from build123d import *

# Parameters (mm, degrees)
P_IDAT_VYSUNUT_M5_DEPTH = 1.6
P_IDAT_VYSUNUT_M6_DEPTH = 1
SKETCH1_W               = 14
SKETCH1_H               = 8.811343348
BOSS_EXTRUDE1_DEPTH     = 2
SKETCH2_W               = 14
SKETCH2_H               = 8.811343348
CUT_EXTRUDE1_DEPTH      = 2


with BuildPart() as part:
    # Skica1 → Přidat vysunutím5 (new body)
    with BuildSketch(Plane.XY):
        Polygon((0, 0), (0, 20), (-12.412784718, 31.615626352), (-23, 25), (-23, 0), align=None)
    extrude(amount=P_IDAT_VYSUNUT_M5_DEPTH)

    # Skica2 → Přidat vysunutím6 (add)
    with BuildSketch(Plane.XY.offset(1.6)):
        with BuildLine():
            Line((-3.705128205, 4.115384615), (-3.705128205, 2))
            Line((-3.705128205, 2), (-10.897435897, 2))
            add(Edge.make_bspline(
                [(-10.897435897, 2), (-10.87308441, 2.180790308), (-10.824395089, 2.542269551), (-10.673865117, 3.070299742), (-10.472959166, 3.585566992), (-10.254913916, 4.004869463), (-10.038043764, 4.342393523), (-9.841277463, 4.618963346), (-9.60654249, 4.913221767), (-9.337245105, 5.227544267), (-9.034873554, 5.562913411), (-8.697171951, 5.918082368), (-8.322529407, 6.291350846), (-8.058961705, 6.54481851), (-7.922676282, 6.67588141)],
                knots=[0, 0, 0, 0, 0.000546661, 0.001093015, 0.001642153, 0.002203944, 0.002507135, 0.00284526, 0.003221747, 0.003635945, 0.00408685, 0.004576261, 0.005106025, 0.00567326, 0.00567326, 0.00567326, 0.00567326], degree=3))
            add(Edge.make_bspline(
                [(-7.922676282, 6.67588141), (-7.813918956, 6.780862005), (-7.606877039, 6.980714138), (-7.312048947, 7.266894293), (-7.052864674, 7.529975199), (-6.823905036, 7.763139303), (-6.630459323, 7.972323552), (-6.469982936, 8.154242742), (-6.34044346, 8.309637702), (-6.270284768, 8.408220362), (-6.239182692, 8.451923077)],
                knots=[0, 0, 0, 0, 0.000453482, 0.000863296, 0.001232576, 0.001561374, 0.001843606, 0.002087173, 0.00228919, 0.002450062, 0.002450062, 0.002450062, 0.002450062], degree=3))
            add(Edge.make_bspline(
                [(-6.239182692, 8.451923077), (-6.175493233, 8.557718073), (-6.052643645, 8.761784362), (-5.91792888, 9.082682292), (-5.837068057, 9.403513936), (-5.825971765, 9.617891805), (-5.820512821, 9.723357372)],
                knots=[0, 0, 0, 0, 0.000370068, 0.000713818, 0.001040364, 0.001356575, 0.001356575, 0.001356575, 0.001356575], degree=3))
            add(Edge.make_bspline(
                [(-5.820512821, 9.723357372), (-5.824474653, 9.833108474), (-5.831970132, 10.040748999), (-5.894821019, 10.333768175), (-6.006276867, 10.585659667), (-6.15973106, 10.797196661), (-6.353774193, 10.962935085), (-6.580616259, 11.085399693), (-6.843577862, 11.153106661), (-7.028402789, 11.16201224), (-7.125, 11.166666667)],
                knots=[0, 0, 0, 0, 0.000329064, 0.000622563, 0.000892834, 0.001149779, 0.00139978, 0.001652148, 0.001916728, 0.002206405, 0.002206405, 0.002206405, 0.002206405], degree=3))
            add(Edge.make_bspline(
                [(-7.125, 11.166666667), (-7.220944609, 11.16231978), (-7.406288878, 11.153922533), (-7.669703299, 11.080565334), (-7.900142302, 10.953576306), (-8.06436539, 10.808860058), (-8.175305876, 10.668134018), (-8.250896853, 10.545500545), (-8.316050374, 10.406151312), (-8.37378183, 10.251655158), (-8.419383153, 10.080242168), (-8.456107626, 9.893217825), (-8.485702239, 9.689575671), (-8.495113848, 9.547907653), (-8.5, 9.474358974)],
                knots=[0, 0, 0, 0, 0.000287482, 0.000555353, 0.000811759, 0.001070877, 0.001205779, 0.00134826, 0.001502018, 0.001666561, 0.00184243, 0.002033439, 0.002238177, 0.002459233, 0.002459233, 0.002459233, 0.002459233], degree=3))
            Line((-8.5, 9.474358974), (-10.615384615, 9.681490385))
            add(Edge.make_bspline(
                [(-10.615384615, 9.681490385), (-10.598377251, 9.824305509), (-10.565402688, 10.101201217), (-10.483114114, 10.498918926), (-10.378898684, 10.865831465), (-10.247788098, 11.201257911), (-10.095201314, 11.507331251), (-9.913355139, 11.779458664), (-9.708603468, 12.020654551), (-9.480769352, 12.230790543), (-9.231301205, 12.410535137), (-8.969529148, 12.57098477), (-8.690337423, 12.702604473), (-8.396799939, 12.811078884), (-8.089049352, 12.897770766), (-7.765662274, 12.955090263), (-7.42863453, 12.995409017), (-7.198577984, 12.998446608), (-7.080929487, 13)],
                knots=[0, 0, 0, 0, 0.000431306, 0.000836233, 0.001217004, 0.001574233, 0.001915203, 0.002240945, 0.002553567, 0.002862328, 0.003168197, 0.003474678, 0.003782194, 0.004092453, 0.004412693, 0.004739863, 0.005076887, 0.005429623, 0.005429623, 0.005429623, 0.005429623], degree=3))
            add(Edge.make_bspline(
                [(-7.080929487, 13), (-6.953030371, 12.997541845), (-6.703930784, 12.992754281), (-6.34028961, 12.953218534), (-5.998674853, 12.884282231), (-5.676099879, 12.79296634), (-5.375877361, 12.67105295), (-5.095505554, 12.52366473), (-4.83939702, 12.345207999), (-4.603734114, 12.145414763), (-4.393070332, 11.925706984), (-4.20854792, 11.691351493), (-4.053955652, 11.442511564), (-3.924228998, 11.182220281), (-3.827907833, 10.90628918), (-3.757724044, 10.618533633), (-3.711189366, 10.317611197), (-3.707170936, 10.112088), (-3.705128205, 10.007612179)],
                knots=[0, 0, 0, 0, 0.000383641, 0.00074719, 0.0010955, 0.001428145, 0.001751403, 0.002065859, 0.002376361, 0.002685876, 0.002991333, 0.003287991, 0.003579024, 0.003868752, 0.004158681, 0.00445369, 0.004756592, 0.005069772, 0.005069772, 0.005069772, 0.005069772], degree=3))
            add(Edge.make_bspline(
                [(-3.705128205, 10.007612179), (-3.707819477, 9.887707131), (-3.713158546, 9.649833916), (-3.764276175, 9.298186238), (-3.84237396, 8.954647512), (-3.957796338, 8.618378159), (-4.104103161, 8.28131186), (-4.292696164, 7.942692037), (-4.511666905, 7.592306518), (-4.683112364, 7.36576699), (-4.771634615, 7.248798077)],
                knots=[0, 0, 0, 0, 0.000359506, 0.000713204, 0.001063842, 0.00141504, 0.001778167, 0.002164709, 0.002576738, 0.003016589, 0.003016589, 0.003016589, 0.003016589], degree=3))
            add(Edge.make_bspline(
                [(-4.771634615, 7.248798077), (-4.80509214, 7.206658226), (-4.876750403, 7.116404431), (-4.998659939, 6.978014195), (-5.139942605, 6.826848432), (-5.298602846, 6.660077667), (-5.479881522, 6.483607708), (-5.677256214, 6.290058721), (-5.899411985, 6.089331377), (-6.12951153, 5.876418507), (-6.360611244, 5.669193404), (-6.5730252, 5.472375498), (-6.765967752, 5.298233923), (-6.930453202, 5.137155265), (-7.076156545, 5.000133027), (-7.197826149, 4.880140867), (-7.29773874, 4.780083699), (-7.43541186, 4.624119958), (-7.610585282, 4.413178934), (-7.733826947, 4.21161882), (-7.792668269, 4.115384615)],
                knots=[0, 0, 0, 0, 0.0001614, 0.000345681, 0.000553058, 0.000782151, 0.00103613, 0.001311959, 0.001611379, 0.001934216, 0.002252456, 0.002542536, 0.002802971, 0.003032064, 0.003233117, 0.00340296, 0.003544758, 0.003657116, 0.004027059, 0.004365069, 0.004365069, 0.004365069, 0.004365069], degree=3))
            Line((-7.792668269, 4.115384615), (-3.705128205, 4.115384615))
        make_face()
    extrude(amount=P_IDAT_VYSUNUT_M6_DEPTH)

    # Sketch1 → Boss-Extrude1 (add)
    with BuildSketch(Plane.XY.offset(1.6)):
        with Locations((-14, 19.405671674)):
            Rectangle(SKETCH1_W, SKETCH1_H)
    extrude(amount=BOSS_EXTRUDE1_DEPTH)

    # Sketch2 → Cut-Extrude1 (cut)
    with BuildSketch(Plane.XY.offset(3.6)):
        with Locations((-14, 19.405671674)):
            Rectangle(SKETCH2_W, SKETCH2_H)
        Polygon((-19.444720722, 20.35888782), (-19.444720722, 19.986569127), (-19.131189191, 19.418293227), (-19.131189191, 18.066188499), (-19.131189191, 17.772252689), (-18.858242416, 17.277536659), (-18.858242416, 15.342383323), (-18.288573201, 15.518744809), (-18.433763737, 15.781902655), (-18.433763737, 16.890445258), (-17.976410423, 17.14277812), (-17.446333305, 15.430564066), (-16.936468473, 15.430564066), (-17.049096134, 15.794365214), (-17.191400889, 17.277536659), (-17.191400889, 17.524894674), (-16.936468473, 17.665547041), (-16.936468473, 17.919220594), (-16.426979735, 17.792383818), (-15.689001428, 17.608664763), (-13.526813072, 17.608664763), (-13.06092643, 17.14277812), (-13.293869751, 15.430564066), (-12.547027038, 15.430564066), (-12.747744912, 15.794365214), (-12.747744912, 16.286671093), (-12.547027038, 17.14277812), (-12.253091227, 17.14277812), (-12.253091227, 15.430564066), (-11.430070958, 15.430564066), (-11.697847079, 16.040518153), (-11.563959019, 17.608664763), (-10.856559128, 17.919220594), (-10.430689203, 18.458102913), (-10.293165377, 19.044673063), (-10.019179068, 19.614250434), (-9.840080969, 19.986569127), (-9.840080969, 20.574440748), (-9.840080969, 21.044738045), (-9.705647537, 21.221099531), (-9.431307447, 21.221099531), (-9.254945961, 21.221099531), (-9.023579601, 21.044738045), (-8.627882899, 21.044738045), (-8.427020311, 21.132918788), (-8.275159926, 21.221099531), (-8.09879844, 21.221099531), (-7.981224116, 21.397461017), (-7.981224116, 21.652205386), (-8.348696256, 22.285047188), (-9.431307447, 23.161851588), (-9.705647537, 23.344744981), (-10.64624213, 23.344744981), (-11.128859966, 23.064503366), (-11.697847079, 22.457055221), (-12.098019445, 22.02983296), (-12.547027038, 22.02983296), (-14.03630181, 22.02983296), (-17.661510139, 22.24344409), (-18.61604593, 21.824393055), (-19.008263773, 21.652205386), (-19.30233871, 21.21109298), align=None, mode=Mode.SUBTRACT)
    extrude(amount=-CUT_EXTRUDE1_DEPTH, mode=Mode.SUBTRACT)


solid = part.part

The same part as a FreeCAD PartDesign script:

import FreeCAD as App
import Part
import Sketcher
from FreeCAD import Vector
Q = App.Units.Quantity


def add_polygon(sketch, points):
    """Adds a closed chain of lines whose ends are joined by coincident constraints."""
    first, n = sketch.GeometryCount, len(points)
    for a, b in zip(points, points[1:] + points[:1]):
        sketch.addGeometry(Part.LineSegment(App.Vector(*a, 0), App.Vector(*b, 0)), False)
    for i in range(n):
        sketch.addConstraint(Sketcher.Constraint("Coincident", first + i, 2, first + (i + 1) % n, 1))

doc = App.newDocument("Part")
body = doc.addObject("PartDesign::Body", "Body")

sketch1 = doc.addObject("Sketcher::SketchObject", "Sketch")
body.addObject(sketch1)
sketch1.AttachmentSupport = (doc.XY_Plane, [""])
sketch1.MapMode = "FlatFace"
add_polygon(sketch1, [(0, 0), (0, 20), (-12, 32), (-23, 25), (-23, 0)])
sketch1.addConstraint([
    Sketcher.Constraint("Vertical", 0),
    Sketcher.Constraint("Vertical", 3),
    Sketcher.Constraint("Horizontal", 4),
    Sketcher.Constraint("Coincident", 4, 2, -1, 1),
    Sketcher.Constraint("DistanceX", 4, 1, 4, 2, Q("23 mm")),
    Sketcher.Constraint("DistanceY", 0, 1, 0, 2, Q("20 mm")),
    Sketcher.Constraint("DistanceY", 3, 2, 3, 1, Q("25 mm")),
    Sketcher.Constraint("Angle", 2, Q("-148 deg")),
    Sketcher.Constraint("Distance", 1, Q("17 mm")),
])
pad1 = doc.addObject("PartDesign::Pad", "Pad")
body.addObject(pad1)
pad1.Profile = sketch1
pad1.Length = 1.6

sketch2 = doc.addObject("Sketcher::SketchObject", "Sketch001")
body.addObject(sketch2)
sketch2.AttachmentSupport = (doc.XY_Plane, [""])
sketch2.MapMode = "FlatFace"
sketch2.AttachmentOffset = App.Placement(Vector(0, 0, 1.6), App.Rotation())
sketch2.addGeometry([
    Part.LineSegment(Vector(-3.705128, 2, 0), Vector(-3.705128, 4.115385, 0)),
    Part.LineSegment(Vector(-3.705128, 4.115385, 0), Vector(-7.792668, 4.115385, 0)),
    Part.BSplineCurve([Vector(-4.771635, 7.248798, 0), Vector(-4.805092, 7.206658, 0), Vector(-4.87675, 7.116404, 0), Vector(-4.99866, 6.978014, 0), Vector(-5.139943, 6.826848, 0), Vector(-5.298603, 6.660078, 0), Vector(-5.479882, 6.483608, 0), Vector(-5.677256, 6.290059, 0), Vector(-5.899412, 6.089331, 0), Vector(-6.129512, 5.876419, 0), Vector(-6.360611, 5.669193, 0), Vector(-6.573025, 5.472375, 0), Vector(-6.765968, 5.298234, 0), Vector(-6.930453, 5.137155, 0), Vector(-7.076157, 5.000133, 0), Vector(-7.197826, 4.880141, 0), Vector(-7.297739, 4.780084, 0), Vector(-7.435412, 4.62412, 0), Vector(-7.610585, 4.413179, 0), Vector(-7.733827, 4.211619, 0), Vector(-7.792668, 4.115385, 0)], [4, 1, 1, 1, 1, 1, 1, 1, 1, 1, 1, 1, 1, 1, 1, 1, 1, 1, 4], [0, 0.0001614, 0.000345681, 0.000553058, 0.000782151, 0.00103613, 0.001311959, 0.001611379, 0.001934216, 0.002252456, 0.002542536, 0.002802971, 0.003032064, 0.003233117, 0.00340296, 0.003544758, 0.003657116, 0.004027059, 0.004365069], False, 3, [1, 1, 1, 1, 1, 1, 1, 1, 1, 1, 1, 1, 1, 1, 1, 1, 1, 1, 1, 1, 1], False),
    Part.BSplineCurve([Vector(-3.705128, 10.007612, 0), Vector(-3.707819, 9.887707, 0), Vector(-3.713159, 9.649834, 0), Vector(-3.764276, 9.298186, 0), Vector(-3.842374, 8.954648, 0), Vector(-3.957796, 8.618378, 0), Vector(-4.104103, 8.281312, 0), Vector(-4.292696, 7.942692, 0), Vector(-4.511667, 7.592307, 0), Vector(-4.683112, 7.365767, 0), Vector(-4.771635, 7.248798, 0)], [4, 1, 1, 1, 1, 1, 1, 1, 4], [0, 0.000359506, 0.000713204, 0.001063842, 0.00141504, 0.001778167, 0.002164709, 0.002576738, 0.003016589], False, 3, [1, 1, 1, 1, 1, 1, 1, 1, 1, 1, 1], False),
    Part.BSplineCurve([Vector(-7.080929, 13, 0), Vector(-6.95303, 12.997542, 0), Vector(-6.703931, 12.992754, 0), Vector(-6.34029, 12.953219, 0), Vector(-5.998675, 12.884282, 0), Vector(-5.6761, 12.792966, 0), Vector(-5.375877, 12.671053, 0), Vector(-5.095506, 12.523665, 0), Vector(-4.839397, 12.345208, 0), Vector(-4.603734, 12.145415, 0), Vector(-4.39307, 11.925707, 0), Vector(-4.208548, 11.691351, 0), Vector(-4.053956, 11.442512, 0), Vector(-3.924229, 11.18222, 0), Vector(-3.827908, 10.906289, 0), Vector(-3.757724, 10.618534, 0), Vector(-3.711189, 10.317611, 0), Vector(-3.707171, 10.112088, 0), Vector(-3.705128, 10.007612, 0)], [4, 1, 1, 1, 1, 1, 1, 1, 1, 1, 1, 1, 1, 1, 1, 1, 4], [0, 0.000383641, 0.00074719, 0.0010955, 0.001428145, 0.001751403, 0.002065859, 0.002376361, 0.002685876, 0.002991333, 0.003287991, 0.003579024, 0.003868752, 0.004158681, 0.00445369, 0.004756592, 0.005069772], False, 3, [1, 1, 1, 1, 1, 1, 1, 1, 1, 1, 1, 1, 1, 1, 1, 1, 1, 1, 1], False),
    Part.BSplineCurve([Vector(-10.615385, 9.68149, 0), Vector(-10.598377, 9.824306, 0), Vector(-10.565403, 10.101201, 0), Vector(-10.483114, 10.498919, 0), Vector(-10.378899, 10.865831, 0), Vector(-10.247788, 11.201258, 0), Vector(-10.095201, 11.507331, 0), Vector(-9.913355, 11.779459, 0), Vector(-9.708603, 12.020655, 0), Vector(-9.480769, 12.230791, 0), Vector(-9.231301, 12.410535, 0), Vector(-8.969529, 12.570985, 0), Vector(-8.690337, 12.702604, 0), Vector(-8.3968, 12.811079, 0), Vector(-8.089049, 12.897771, 0), Vector(-7.765662, 12.95509, 0), Vector(-7.428635, 12.995409, 0), Vector(-7.198578, 12.998447, 0), Vector(-7.080929, 13, 0)], [4, 1, 1, 1, 1, 1, 1, 1, 1, 1, 1, 1, 1, 1, 1, 1, 4], [0, 0.000431306, 0.000836233, 0.001217004, 0.001574233, 0.001915203, 0.002240945, 0.002553567, 0.002862328, 0.003168197, 0.003474678, 0.003782194, 0.004092453, 0.004412693, 0.004739863, 0.005076887, 0.005429623], False, 3, [1, 1, 1, 1, 1, 1, 1, 1, 1, 1, 1, 1, 1, 1, 1, 1, 1, 1, 1], False),
    Part.LineSegment(Vector(-10.615385, 9.68149, 0), Vector(-8.5, 9.474359, 0)),
    Part.BSplineCurve([Vector(-7.125, 11.166667, 0), Vector(-7.220945, 11.16232, 0), Vector(-7.406289, 11.153923, 0), Vector(-7.669703, 11.080565, 0), Vector(-7.900142, 10.953576, 0), Vector(-8.064365, 10.80886, 0), Vector(-8.175306, 10.668134, 0), Vector(-8.250897, 10.545501, 0), Vector(-8.31605, 10.406151, 0), Vector(-8.373782, 10.251655, 0), Vector(-8.419383, 10.080242, 0), Vector(-8.456108, 9.893218, 0), Vector(-8.485702, 9.689576, 0), Vector(-8.495114, 9.547908, 0), Vector(-8.5, 9.474359, 0)], [4, 1, 1, 1, 1, 1, 1, 1, 1, 1, 1, 1, 4], [0, 0.000287482, 0.000555353, 0.000811759, 0.001070877, 0.001205779, 0.00134826, 0.001502018, 0.001666561, 0.00184243, 0.002033439, 0.002238177, 0.002459233], False, 3, [1, 1, 1, 1, 1, 1, 1, 1, 1, 1, 1, 1, 1, 1, 1], False),
    Part.BSplineCurve([Vector(-5.820513, 9.723357, 0), Vector(-5.824475, 9.833108, 0), Vector(-5.83197, 10.040749, 0), Vector(-5.894821, 10.333768, 0), Vector(-6.006277, 10.58566, 0), Vector(-6.159731, 10.797197, 0), Vector(-6.353774, 10.962935, 0), Vector(-6.580616, 11.0854, 0), Vector(-6.843578, 11.153107, 0), Vector(-7.028403, 11.162012, 0), Vector(-7.125, 11.166667, 0)], [4, 1, 1, 1, 1, 1, 1, 1, 4], [0, 0.000329064, 0.000622563, 0.000892834, 0.001149779, 0.00139978, 0.001652148, 0.001916728, 0.002206405], False, 3, [1, 1, 1, 1, 1, 1, 1, 1, 1, 1, 1], False),
    Part.BSplineCurve([Vector(-6.239183, 8.451923, 0), Vector(-6.175493, 8.557718, 0), Vector(-6.052644, 8.761784, 0), Vector(-5.917929, 9.082682, 0), Vector(-5.837068, 9.403514, 0), Vector(-5.825972, 9.617892, 0), Vector(-5.820513, 9.723357, 0)], [4, 1, 1, 1, 4], [0, 0.000370068, 0.000713818, 0.001040364, 0.001356575], False, 3, [1, 1, 1, 1, 1, 1, 1], False),
    Part.BSplineCurve([Vector(-7.922676, 6.675881, 0), Vector(-7.813919, 6.780862, 0), Vector(-7.606877, 6.980714, 0), Vector(-7.312049, 7.266894, 0), Vector(-7.052865, 7.529975, 0), Vector(-6.823905, 7.763139, 0), Vector(-6.630459, 7.972324, 0), Vector(-6.469983, 8.154243, 0), Vector(-6.340443, 8.309638, 0), Vector(-6.270285, 8.40822, 0), Vector(-6.239183, 8.451923, 0)], [4, 1, 1, 1, 1, 1, 1, 1, 4], [0, 0.000453482, 0.000863296, 0.001232576, 0.001561374, 0.001843606, 0.002087173, 0.00228919, 0.002450062], False, 3, [1, 1, 1, 1, 1, 1, 1, 1, 1, 1, 1], False),
    Part.BSplineCurve([Vector(-10.897436, 2, 0), Vector(-10.873084, 2.18079, 0), Vector(-10.824395, 2.54227, 0), Vector(-10.673865, 3.0703, 0), Vector(-10.472959, 3.585567, 0), Vector(-10.254914, 4.004869, 0), Vector(-10.038044, 4.342394, 0), Vector(-9.841277, 4.618963, 0), Vector(-9.606542, 4.913222, 0), Vector(-9.337245, 5.227544, 0), Vector(-9.034874, 5.562913, 0), Vector(-8.697172, 5.918082, 0), Vector(-8.322529, 6.291351, 0), Vector(-8.058962, 6.544819, 0), Vector(-7.922676, 6.675881, 0)], [4, 1, 1, 1, 1, 1, 1, 1, 1, 1, 1, 1, 4], [0, 0.000546661, 0.001093015, 0.001642153, 0.002203944, 0.002507135, 0.00284526, 0.003221747, 0.003635945, 0.00408685, 0.004576261, 0.005106025, 0.00567326], False, 3, [1, 1, 1, 1, 1, 1, 1, 1, 1, 1, 1, 1, 1, 1, 1], False),
    Part.LineSegment(Vector(-10.897436, 2, 0), Vector(-3.705128, 2, 0)),
], False)
sketch2.addConstraint([
    Sketcher.Constraint("Block", 2),
    Sketcher.Constraint("Block", 3),
    Sketcher.Constraint("Block", 4),
    Sketcher.Constraint("Block", 5),
    Sketcher.Constraint("Block", 7),
    Sketcher.Constraint("Block", 8),
    Sketcher.Constraint("Block", 9),
    Sketcher.Constraint("Block", 10),
    Sketcher.Constraint("Block", 11),
    Sketcher.Constraint("Coincident", 0, 2, 1, 1),
    Sketcher.Constraint("Coincident", 1, 2, 2, 2),
    Sketcher.Constraint("Coincident", 5, 1, 6, 1),
    Sketcher.Constraint("Coincident", 6, 2, 7, 2),
    Sketcher.Constraint("Coincident", 11, 1, 12, 1),
    Sketcher.Constraint("Coincident", 12, 2, 0, 1),
    Sketcher.Constraint("Vertical", 0),
    Sketcher.Constraint("Horizontal", 1),
    Sketcher.Constraint("Horizontal", 12),
    Sketcher.Constraint("DistanceX", 1, 2, 1, 1, Q("4.08754 mm")),
])
pad2 = doc.addObject("PartDesign::Pad", "Pad001")
body.addObject(pad2)
pad2.Profile = sketch2
pad2.Length = 1

sketch3 = doc.addObject("Sketcher::SketchObject", "Sketch002")
body.addObject(sketch3)
sketch3.AttachmentSupport = (doc.XY_Plane, [""])
sketch3.MapMode = "FlatFace"
sketch3.AttachmentOffset = App.Placement(Vector(0, 0, 1.6), App.Rotation())
add_polygon(sketch3, [(-21, 24), (-21, 15), (-7, 15), (-7, 24)])
sketch3.addConstraint([
    Sketcher.Constraint("Vertical", 0),
    Sketcher.Constraint("Horizontal", 1),
    Sketcher.Constraint("Vertical", 2),
    Sketcher.Constraint("Horizontal", 3),
    Sketcher.Constraint("DistanceX", 1, 1, 1, 2, Q("14 mm")),
    Sketcher.Constraint("DistanceX", 0, 2, -1, 1, Q("21 mm")),
    Sketcher.Constraint("DistanceY", -1, 1, 0, 2, Q("15 mm")),
    Sketcher.Constraint("DistanceY", 0, 2, 0, 1, Q("8.811343 mm")),
])
pad3 = doc.addObject("PartDesign::Pad", "Pad002")
body.addObject(pad3)
pad3.Profile = sketch3
pad3.Length = 2

sketch4 = doc.addObject("Sketcher::SketchObject", "Sketch003")
body.addObject(sketch4)
sketch4.AttachmentSupport = (doc.XY_Plane, [""])
sketch4.MapMode = "FlatFace"
sketch4.AttachmentOffset = App.Placement(Vector(0, 0, 3.6), App.Rotation())
add_polygon(sketch4, [(-21, 23.81), (-21, 15), (-7, 15), (-7, 23.81)])
add_polygon(sketch4, [(-19.44, 19.99), (-19.44, 20.36), (-19.3, 21.21), (-19.01, 21.65), (-18.62, 21.82), (-17.66, 22.24), (-14.04, 22.03), (-12.1, 22.03), (-11.7, 22.46), (-11.13, 23.06), (-10.65, 23.34), (-9.71, 23.34), (-9.43, 23.16), (-8.35, 22.29), (-7.98, 21.65), (-7.98, 21.4), (-8.1, 21.22), (-8.28, 21.22), (-8.43, 21.13), (-8.63, 21.04), (-9.02, 21.04), (-9.25, 21.22), (-9.71, 21.22), (-9.84, 21.04), (-9.84, 19.99), (-10.02, 19.61), (-10.29, 19.04), (-10.43, 18.46), (-10.86, 17.92), (-11.56, 17.61), (-11.7, 16.04), (-11.43, 15.43), (-12.25, 15.43), (-12.25, 17.14), (-12.55, 17.14), (-12.75, 16.29), (-12.75, 15.79), (-12.55, 15.43), (-13.29, 15.43), (-13.06, 17.14), (-13.53, 17.61), (-15.69, 17.61), (-16.43, 17.79), (-16.94, 17.92), (-16.94, 17.67), (-17.19, 17.52), (-17.19, 17.28), (-17.05, 15.79), (-16.94, 15.43), (-17.45, 15.43), (-17.98, 17.14), (-18.43, 16.89), (-18.43, 15.78), (-18.29, 15.52), (-18.86, 15.34), (-18.86, 17.28), (-19.13, 17.77), (-19.13, 19.42)])
sketch4.addConstraint([
    Sketcher.Constraint("Vertical", 0),
    Sketcher.Constraint("Horizontal", 1),
    Sketcher.Constraint("Vertical", 2),
    Sketcher.Constraint("Horizontal", 3),
    Sketcher.Constraint("Vertical", 4),
    Sketcher.Constraint("Horizontal", 10),
    Sketcher.Constraint("Horizontal", 14),
    Sketcher.Constraint("Vertical", 18),
    Sketcher.Constraint("Horizontal", 20),
    Sketcher.Constraint("Horizontal", 23),
    Sketcher.Constraint("Horizontal", 25),
    Sketcher.Constraint("Vertical", 27),
    Sketcher.Constraint("Horizontal", 35),
    Sketcher.Constraint("Vertical", 36),
    Sketcher.Constraint("Horizontal", 37),
    Sketcher.Constraint("Vertical", 39),
    Sketcher.Constraint("Horizontal", 41),
    Sketcher.Constraint("Horizontal", 44),
    Sketcher.Constraint("Vertical", 47),
    Sketcher.Constraint("Vertical", 49),
    Sketcher.Constraint("Horizontal", 52),
    Sketcher.Constraint("Vertical", 55),
    Sketcher.Constraint("Vertical", 58),
    Sketcher.Constraint("Vertical", 60),
    Sketcher.Constraint("Parallel", 7, 8),
    Sketcher.Constraint("Parallel", 11, 12),
    Sketcher.Constraint("Perpendicular", 6, 15),
    Sketcher.Constraint("Perpendicular", 13, 17),
    Sketcher.Constraint("Perpendicular", 15, 19),
    Sketcher.Constraint("Perpendicular", 17, 21),
    Sketcher.Constraint("Parallel", 8, 22),
    Sketcher.Constraint("Perpendicular", 24, 26),
    Sketcher.Constraint("Parallel", 28, 29),
    Sketcher.Constraint("Parallel", 22, 32),
    Sketcher.Constraint("Perpendicular", 32, 34),
    Sketcher.Constraint("Parallel", 30, 38),
    Sketcher.Constraint("Parallel", 45, 46),
    Sketcher.Constraint("Perpendicular", 40, 48),
    Sketcher.Constraint("Parallel", 51, 53),
    Sketcher.Constraint("Parallel", 48, 54),
    Sketcher.Constraint("Perpendicular", 54, 56),
    Sketcher.Constraint("Perpendicular", 53, 57),
    Sketcher.Constraint("Parallel", 56, 59),
    Sketcher.Constraint("Parallel", 59, 61),
    Sketcher.Constraint("Horizontal", 6, 2, 17, 2),
    Sketcher.Constraint("Horizontal", 20, 2, 24, 2),
    Sketcher.Constraint("Horizontal", 23, 2, 26, 2),
    Sketcher.Constraint("Horizontal", 35, 2, 40, 2),
    Sketcher.Constraint("Horizontal", 37, 2, 42, 2),
    Sketcher.Constraint("Horizontal", 32, 2, 43, 2),
    Sketcher.Constraint("Horizontal", 31, 2, 46, 2),
    Sketcher.Constraint("Horizontal", 39, 2, 50, 2),
    Sketcher.Constraint("Horizontal", 41, 2, 51, 2),
    Sketcher.Constraint("Horizontal", 42, 2, 53, 2),
    Sketcher.Constraint("Horizontal", 49, 2, 58, 2),
    Sketcher.Constraint("Horizontal", 27, 2, 61, 2),
    Sketcher.Constraint("Vertical", 14, 2, 25, 2),
    Sketcher.Constraint("Vertical", 11, 2, 33, 2),
    Sketcher.Constraint("Vertical", 37, 2, 40, 2),
    Sketcher.Constraint("Vertical", 47, 2, 51, 2),
    Sketcher.Constraint("DistanceX", 1, 1, 1, 2, Q("14 mm")),
    Sketcher.Constraint("Angle", 43, Q("135 deg")),
    Sketcher.Constraint("DistanceX", 0, 2, -1, 1, Q("21 mm")),
    Sketcher.Constraint("DistanceY", -1, 1, 0, 2, Q("15 mm")),
    Sketcher.Constraint("DistanceX", 25, 2, 25, 1, Q("0.450702 mm")),
    Sketcher.Constraint("DistanceX", 44, 2, -1, 1, Q("15.689001 mm")),
    Sketcher.Constraint("Distance", 40, Q("0.415498 mm")),
    Sketcher.Constraint("DistanceX", 20, 2, 20, 1, Q("0.176361 mm")),
    Sketcher.Constraint("DistanceX", 35, 2, 35, 1, Q("0.82302 mm")),
    Sketcher.Constraint("DistanceX", 44, 2, 44, 1, Q("2.162188 mm")),
    Sketcher.Constraint("DistanceY", 4, 1, 4, 2, Q("0.372319 mm")),
    Sketcher.Constraint("DistanceY", 27, 2, 27, 1, Q("1.058169 mm")),
    Sketcher.Constraint("DistanceY", 49, 2, 49, 1, Q("0.247358 mm")),
    Sketcher.Constraint("DistanceY", 60, 1, 60, 2, Q("1.646041 mm")),
    Sketcher.Constraint("DistanceX", 9, 2, -1, 1, Q("14.036302 mm")),
    Sketcher.Constraint("DistanceX", 19, 2, -1, 1, Q("8.098798 mm")),
    Sketcher.Constraint("DistanceY", -1, 1, 19, 2, Q("21.2211 mm")),
    Sketcher.Constraint("DistanceX", 48, 2, -1, 1, Q("17.191401 mm")),
    Sketcher.Constraint("Distance", 6, Q("0.530151 mm")),
    Sketcher.Constraint("Distance", 7, Q("0.42835 mm")),
    Sketcher.Constraint("Distance", 8, Q("1.042469 mm")),
    Sketcher.Constraint("Distance", 11, Q("0.585369 mm")),
    Sketcher.Constraint("Distance", 12, Q("0.83231 mm")),
    Sketcher.Constraint("Distance", 13, Q("0.558082 mm")),
    Sketcher.Constraint("Distance", 19, Q("0.21196 mm")),
    Sketcher.Constraint("Distance", 24, Q("0.290919 mm")),
    Sketcher.Constraint("Distance", 29, Q("0.63205 mm")),
    Sketcher.Constraint("Distance", 33, Q("1.573852 mm")),
    Sketcher.Constraint("Distance", 38, Q("0.879322 mm")),
    Sketcher.Constraint("Distance", 46, Q("0.525039 mm")),
    Sketcher.Constraint("Distance", 48, Q("0.291159 mm")),
    Sketcher.Constraint("Distance", 53, Q("1.792389 mm")),
    Sketcher.Constraint("Distance", 61, Q("0.64903 mm")),
    Sketcher.Constraint("DistanceX", 10, 1, 10, 2, Q("1.938282 mm")),
    Sketcher.Constraint("DistanceX", 14, 1, 14, 2, Q("0.940595 mm")),
    Sketcher.Constraint("DistanceX", 23, 2, 23, 1, Q("0.395697 mm")),
    Sketcher.Constraint("DistanceX", 37, 2, 37, 1, Q("0.293936 mm")),
    Sketcher.Constraint("DistanceX", 41, 2, 41, 1, Q("0.746843 mm")),
    Sketcher.Constraint("DistanceX", 52, 2, 52, 1, Q("0.509865 mm")),
    Sketcher.Constraint("DistanceY", 0, 2, 0, 1, Q("8.811343 mm")),
    Sketcher.Constraint("DistanceY", 18, 2, 18, 1, Q("0.254744 mm")),
    Sketcher.Constraint("DistanceY", 36, 1, 36, 2, Q("1.712214 mm")),
    Sketcher.Constraint("DistanceY", 39, 2, 39, 1, Q("0.492306 mm")),
    Sketcher.Constraint("DistanceY", 47, 2, 47, 1, Q("0.253674 mm")),
    Sketcher.Constraint("DistanceY", 55, 2, 55, 1, Q("1.108543 mm")),
    Sketcher.Constraint("DistanceY", 58, 1, 58, 2, Q("1.935153 mm")),
    Sketcher.Constraint("DistanceX", 4, 2, -1, 1, Q("19.444721 mm")),
    Sketcher.Constraint("DistanceX", 5, 2, -1, 1, Q("19.302339 mm")),
    Sketcher.Constraint("DistanceX", 8, 2, -1, 1, Q("17.66151 mm")),
    Sketcher.Constraint("DistanceX", 12, 2, -1, 1, Q("11.12886 mm")),
    Sketcher.Constraint("DistanceY", -1, 1, 15, 2, Q("23.161852 mm")),
    Sketcher.Constraint("DistanceY", -1, 1, 18, 2, Q("21.397461 mm")),
    Sketcher.Constraint("DistanceX", 21, 2, -1, 1, Q("8.42702 mm")),
    Sketcher.Constraint("DistanceY", -1, 1, 21, 2, Q("21.132919 mm")),
    Sketcher.Constraint("DistanceX", 28, 2, -1, 1, Q("10.019179 mm")),
    Sketcher.Constraint("DistanceY", -1, 1, 28, 2, Q("19.61425 mm")),
    Sketcher.Constraint("DistanceX", 30, 2, -1, 1, Q("10.430689 mm")),
    Sketcher.Constraint("DistanceX", 31, 2, -1, 1, Q("10.856559 mm")),
    Sketcher.Constraint("DistanceY", -1, 1, 31, 2, Q("17.919221 mm")),
    Sketcher.Constraint("DistanceX", 32, 2, -1, 1, Q("11.563959 mm")),
    Sketcher.Constraint("DistanceX", 34, 2, -1, 1, Q("11.430071 mm")),
    Sketcher.Constraint("Distance", 9, Q("3.631496 mm")),
    Sketcher.Constraint("Distance", 16, Q("1.393138 mm")),
    Sketcher.Constraint("Distance", 54, Q("0.522345 mm")),
])
pocket1 = doc.addObject("PartDesign::Pocket", "Pocket")
body.addObject(pocket1)
pocket1.Profile = sketch4
pocket1.Length = 2

doc.recompute()
